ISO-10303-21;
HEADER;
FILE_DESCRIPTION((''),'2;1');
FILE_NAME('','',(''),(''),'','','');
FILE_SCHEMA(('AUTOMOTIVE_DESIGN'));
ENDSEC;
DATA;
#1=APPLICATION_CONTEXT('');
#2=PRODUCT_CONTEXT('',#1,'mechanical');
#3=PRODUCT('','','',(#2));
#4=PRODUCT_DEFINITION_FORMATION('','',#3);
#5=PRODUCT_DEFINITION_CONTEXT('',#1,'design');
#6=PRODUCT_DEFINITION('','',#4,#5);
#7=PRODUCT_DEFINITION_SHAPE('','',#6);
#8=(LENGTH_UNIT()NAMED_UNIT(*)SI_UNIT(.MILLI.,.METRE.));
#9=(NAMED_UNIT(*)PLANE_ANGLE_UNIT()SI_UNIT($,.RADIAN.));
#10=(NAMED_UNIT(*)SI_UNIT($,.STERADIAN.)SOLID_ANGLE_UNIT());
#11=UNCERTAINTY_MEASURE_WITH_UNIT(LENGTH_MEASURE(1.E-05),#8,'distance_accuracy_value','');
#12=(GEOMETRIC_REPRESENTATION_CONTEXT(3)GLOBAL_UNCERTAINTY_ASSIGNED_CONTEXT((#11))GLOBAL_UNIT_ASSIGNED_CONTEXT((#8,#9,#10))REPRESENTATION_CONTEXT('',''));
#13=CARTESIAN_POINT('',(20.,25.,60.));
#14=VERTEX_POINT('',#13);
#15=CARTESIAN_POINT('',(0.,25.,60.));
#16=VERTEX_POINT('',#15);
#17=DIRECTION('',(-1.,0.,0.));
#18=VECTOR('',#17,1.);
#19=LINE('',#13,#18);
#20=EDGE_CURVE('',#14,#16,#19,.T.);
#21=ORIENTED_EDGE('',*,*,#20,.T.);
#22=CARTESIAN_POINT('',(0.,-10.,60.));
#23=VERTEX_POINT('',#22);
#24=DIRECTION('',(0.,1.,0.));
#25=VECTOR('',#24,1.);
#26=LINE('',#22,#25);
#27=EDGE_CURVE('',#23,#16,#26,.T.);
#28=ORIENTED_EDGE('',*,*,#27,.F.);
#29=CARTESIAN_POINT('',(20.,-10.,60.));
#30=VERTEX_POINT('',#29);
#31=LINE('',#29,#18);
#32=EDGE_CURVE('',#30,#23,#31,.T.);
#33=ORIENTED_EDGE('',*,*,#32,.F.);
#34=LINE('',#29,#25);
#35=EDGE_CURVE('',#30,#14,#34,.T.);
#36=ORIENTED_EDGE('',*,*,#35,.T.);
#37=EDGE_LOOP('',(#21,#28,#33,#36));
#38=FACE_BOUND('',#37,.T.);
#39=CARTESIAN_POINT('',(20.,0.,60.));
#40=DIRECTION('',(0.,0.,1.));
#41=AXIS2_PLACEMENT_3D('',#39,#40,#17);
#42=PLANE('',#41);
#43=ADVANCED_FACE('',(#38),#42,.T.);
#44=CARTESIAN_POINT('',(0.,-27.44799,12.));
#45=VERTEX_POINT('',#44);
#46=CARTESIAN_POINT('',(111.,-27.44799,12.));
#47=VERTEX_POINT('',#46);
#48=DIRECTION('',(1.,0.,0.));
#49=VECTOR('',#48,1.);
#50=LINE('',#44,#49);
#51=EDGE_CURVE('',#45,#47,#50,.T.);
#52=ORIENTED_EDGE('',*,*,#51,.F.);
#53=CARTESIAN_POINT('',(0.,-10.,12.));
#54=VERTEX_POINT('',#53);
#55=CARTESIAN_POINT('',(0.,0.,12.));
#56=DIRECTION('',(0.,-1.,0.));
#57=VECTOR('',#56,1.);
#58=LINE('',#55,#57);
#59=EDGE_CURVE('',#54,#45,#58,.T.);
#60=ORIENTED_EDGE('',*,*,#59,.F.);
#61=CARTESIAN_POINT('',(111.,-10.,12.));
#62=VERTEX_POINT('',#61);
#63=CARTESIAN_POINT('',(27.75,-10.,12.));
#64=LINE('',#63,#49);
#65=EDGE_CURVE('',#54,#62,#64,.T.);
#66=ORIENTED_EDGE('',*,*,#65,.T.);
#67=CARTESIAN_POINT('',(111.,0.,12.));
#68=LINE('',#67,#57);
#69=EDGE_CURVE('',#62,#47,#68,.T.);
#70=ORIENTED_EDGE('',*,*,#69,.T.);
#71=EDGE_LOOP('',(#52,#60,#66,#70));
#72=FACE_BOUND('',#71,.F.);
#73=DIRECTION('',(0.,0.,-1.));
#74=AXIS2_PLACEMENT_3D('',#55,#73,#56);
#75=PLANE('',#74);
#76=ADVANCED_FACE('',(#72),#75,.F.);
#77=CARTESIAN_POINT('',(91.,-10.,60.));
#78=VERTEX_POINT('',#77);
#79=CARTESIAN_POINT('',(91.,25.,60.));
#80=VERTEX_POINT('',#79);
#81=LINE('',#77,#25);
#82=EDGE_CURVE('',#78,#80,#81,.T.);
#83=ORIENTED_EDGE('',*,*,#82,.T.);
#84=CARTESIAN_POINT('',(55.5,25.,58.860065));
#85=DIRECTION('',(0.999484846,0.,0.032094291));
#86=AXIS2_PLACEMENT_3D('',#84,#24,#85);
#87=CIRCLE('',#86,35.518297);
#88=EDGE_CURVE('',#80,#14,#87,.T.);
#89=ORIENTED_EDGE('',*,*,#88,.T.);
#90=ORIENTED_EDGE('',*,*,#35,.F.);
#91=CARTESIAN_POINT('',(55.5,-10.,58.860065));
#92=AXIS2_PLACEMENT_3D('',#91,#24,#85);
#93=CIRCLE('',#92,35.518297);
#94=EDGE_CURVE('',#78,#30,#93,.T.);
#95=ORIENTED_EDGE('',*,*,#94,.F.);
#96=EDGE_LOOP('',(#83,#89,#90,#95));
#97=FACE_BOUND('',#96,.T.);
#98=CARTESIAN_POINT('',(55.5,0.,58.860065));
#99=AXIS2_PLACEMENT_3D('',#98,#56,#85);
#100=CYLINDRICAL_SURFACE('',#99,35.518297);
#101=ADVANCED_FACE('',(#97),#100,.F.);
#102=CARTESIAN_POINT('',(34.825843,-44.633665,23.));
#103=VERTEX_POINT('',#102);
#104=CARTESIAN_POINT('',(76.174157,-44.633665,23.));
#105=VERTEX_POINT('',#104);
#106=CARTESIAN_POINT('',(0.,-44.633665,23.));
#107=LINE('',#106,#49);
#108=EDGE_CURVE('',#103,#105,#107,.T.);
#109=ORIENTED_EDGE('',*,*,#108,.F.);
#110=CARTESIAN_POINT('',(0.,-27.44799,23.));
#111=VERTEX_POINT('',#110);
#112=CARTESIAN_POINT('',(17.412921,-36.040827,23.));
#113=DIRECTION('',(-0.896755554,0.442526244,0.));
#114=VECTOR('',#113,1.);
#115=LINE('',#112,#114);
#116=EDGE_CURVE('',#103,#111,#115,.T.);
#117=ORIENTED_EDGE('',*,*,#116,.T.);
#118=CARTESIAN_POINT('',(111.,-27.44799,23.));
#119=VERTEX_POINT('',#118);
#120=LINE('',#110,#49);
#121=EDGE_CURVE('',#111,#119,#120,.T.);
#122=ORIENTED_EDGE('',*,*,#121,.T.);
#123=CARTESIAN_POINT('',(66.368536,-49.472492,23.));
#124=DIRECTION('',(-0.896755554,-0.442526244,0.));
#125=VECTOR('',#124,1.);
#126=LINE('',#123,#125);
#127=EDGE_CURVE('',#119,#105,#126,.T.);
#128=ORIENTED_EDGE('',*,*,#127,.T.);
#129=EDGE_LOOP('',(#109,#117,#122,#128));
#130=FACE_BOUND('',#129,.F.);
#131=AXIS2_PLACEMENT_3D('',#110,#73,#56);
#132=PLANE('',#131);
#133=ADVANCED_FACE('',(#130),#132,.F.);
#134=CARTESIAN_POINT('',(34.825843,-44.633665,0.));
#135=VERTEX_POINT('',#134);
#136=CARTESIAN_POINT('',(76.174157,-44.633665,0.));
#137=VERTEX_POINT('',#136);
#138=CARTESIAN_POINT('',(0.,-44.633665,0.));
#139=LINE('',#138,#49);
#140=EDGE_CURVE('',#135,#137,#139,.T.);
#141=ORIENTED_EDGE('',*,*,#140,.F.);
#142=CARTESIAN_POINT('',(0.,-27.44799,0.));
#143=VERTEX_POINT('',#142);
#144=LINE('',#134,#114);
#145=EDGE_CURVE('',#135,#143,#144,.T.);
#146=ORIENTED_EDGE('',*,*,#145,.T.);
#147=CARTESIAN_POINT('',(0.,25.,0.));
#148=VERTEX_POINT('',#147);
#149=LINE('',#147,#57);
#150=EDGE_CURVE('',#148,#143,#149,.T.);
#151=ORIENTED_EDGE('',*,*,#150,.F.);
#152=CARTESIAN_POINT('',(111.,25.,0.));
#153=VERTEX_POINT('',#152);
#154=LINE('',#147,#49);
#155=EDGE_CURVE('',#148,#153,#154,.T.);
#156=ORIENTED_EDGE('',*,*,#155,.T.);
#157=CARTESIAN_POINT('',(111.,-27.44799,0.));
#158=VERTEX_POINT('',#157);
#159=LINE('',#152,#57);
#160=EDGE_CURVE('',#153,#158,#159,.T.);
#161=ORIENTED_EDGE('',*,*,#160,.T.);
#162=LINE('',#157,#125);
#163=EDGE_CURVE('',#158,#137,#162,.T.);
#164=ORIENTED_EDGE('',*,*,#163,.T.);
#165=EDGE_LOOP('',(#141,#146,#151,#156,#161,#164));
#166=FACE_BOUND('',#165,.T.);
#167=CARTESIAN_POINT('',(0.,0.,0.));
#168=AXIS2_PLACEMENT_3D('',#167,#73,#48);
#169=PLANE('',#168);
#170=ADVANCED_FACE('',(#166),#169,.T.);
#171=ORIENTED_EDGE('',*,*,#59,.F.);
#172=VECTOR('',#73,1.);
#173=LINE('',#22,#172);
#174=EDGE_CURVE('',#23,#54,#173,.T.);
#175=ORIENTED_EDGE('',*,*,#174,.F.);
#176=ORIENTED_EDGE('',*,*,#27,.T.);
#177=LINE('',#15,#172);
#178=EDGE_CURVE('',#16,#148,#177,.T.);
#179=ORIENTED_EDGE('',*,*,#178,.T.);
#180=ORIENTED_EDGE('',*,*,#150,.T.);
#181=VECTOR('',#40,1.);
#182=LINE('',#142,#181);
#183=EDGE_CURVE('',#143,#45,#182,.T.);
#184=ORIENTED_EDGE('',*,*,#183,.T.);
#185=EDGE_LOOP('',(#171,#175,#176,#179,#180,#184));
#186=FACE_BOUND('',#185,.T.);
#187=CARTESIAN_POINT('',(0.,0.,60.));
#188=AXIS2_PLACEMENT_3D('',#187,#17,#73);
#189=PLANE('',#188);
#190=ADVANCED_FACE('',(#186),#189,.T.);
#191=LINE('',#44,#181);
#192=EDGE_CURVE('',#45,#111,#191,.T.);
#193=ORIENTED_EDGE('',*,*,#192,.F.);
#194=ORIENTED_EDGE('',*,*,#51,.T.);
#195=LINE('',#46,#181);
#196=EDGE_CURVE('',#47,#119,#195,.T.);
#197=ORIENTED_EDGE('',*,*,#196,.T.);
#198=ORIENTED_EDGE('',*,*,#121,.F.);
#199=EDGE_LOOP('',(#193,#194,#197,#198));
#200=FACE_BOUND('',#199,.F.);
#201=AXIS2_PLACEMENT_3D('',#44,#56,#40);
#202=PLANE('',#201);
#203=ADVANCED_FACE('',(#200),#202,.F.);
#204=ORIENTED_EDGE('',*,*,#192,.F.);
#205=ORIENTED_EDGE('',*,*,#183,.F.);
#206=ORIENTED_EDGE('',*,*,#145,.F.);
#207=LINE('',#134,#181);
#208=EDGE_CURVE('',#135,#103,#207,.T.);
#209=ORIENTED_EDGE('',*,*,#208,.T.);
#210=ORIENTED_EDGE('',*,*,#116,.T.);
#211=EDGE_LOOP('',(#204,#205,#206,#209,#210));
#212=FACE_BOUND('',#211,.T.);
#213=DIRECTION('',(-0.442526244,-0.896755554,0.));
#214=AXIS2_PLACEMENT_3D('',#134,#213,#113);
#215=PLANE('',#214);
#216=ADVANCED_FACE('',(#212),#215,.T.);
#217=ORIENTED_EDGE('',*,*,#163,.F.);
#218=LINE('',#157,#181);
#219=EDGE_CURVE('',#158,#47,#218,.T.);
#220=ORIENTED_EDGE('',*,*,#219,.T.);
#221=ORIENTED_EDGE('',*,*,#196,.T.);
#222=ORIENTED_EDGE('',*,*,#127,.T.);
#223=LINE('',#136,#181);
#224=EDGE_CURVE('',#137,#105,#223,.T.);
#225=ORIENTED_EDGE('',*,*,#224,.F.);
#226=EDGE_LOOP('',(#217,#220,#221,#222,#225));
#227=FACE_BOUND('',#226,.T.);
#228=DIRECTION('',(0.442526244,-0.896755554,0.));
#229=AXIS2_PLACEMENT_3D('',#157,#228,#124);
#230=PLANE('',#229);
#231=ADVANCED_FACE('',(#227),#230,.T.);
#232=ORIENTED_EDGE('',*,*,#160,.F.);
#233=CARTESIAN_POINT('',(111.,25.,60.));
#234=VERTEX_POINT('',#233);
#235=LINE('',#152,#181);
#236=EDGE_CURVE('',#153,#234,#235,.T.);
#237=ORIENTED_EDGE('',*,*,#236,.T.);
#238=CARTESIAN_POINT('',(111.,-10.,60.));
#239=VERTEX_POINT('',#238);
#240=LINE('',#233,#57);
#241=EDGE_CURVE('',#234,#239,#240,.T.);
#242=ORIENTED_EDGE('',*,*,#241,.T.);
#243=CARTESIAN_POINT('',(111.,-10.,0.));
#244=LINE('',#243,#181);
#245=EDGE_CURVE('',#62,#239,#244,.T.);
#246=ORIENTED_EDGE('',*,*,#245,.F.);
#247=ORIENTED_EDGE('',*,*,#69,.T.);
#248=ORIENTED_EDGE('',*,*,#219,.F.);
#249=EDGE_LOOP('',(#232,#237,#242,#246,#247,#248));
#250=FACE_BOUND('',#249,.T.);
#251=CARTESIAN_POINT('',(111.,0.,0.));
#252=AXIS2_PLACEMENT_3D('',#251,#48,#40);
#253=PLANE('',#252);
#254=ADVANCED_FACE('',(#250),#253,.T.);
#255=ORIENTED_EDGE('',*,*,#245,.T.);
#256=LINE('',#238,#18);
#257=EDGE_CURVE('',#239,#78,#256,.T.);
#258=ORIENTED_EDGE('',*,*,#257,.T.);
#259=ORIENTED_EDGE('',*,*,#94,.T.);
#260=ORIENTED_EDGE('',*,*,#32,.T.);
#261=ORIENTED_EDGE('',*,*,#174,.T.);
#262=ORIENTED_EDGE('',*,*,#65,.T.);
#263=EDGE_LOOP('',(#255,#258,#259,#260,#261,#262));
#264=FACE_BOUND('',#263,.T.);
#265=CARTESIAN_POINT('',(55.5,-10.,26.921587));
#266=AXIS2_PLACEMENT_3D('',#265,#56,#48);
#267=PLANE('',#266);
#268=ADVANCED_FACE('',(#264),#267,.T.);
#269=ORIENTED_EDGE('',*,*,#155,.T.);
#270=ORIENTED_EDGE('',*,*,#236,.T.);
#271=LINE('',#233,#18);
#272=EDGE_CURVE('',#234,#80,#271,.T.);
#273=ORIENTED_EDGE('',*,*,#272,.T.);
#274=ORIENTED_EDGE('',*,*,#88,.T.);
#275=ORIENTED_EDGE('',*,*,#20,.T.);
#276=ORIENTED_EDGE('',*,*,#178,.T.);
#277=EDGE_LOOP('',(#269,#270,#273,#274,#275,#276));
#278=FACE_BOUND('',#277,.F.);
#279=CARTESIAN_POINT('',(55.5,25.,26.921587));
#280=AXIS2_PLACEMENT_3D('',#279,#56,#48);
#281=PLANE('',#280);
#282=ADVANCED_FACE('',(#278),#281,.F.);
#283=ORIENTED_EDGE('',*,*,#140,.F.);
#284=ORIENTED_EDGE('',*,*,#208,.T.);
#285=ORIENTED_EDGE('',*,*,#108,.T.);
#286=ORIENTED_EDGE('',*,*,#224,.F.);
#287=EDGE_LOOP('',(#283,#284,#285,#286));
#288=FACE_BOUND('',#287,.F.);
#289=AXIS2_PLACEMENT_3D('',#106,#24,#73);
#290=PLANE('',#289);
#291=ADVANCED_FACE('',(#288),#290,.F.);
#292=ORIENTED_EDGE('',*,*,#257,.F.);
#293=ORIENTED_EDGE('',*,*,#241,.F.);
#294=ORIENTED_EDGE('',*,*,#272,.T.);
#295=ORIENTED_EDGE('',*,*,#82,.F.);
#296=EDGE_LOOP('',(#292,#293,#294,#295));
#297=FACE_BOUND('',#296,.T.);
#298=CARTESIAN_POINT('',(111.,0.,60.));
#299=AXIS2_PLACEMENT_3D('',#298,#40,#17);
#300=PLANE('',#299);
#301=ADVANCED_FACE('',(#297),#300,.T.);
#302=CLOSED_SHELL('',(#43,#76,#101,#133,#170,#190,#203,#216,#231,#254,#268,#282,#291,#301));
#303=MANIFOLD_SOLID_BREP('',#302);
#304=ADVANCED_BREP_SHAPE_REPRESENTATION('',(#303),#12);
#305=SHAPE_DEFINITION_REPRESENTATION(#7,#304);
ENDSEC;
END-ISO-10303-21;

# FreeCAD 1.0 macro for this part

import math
import FreeCAD as App
import Part
import Sketcher
from FreeCAD import Vector

doc = App.newDocument("Part")
body = doc.addObject("PartDesign::Body", "Body")

# Sketch on XZ plane
sketch1 = body.newObject("Sketcher::SketchObject", "Sketch")
sketch1.AttachmentSupport = (doc.getObject("XZ_Plane"), [""])
sketch1.MapMode = "FlatFace"
sketch1.addGeometry([
    Part.LineSegment(Vector(0, 60, 0), Vector(0, 0, 0)),  # 0
    Part.LineSegment(Vector(0, 0, 0), Vector(111, 0, 0)),  # 1
    Part.LineSegment(Vector(111, 0, 0), Vector(111, 60, 0)),  # 2
    Part.LineSegment(Vector(111, 60, 0), Vector(91, 60, 0)),  # 3
    Part.ArcOfCircle(Part.Circle(Vector(56, 59, 0), Vector(0, 0, 1), 36), math.radians(178), math.radians(362)),  # 4
    Part.LineSegment(Vector(20, 60, 0), Vector(0, 60, 0)),  # 5
], False)
sketch1.addConstraint([
    Sketcher.Constraint("Coincident", 0, 2, 1, 1),
    Sketcher.Constraint("Coincident", 1, 2, 2, 1),
    Sketcher.Constraint("Coincident", 2, 2, 3, 1),
    Sketcher.Constraint("Coincident", 3, 2, 4, 2),
    Sketcher.Constraint("Coincident", 4, 1, 5, 1),
    Sketcher.Constraint("Coincident", 5, 2, 0, 1),
    Sketcher.Constraint("Vertical", 0),
    Sketcher.Constraint("Horizontal", 1),
    Sketcher.Constraint("Vertical", 2),
    Sketcher.Constraint("Horizontal", 3),
    Sketcher.Constraint("Horizontal", 5),
    Sketcher.Constraint("Coincident", 0, 2, -1, 1),
    Sketcher.Constraint("Horizontal", 3, 2, 4, 1),
    Sketcher.Constraint("Equal", 3, 5),
    Sketcher.Constraint("DistanceX", 1, 1, 1, 2, 111.0),
    Sketcher.Constraint("DistanceX", 3, 2, 3, 1, 20.0),
    Sketcher.Constraint("DistanceY", 0, 2, 0, 1, 60.0),
    Sketcher.Constraint("Radius", 4, 35.518297),
])
pad1 = body.newObject("PartDesign::Pad", "Pad")
pad1.Profile = sketch1
pad1.Type = "TwoLengths"
pad1.Length = 10
pad1.Length2 = 25

# Sketch on YZ plane
sketch2 = body.newObject("Sketcher::SketchObject", "Sketch001")
sketch2.AttachmentSupport = (doc.getObject("YZ_Plane"), [""])
sketch2.MapMode = "FlatFace"
sketch2.addGeometry([
    Part.LineSegment(Vector(0, 12, 0), Vector(-27, 12, 0)),  # 0
    Part.LineSegment(Vector(-27, 12, 0), Vector(-27, 23, 0)),  # 1
    Part.LineSegment(Vector(-27, 23, 0), Vector(-45, 23, 0)),  # 2
    Part.LineSegment(Vector(-45, 23, 0), Vector(-45, 0, 0)),  # 3
    Part.LineSegment(Vector(-45, 0, 0), Vector(0, 0, 0)),  # 4
    Part.LineSegment(Vector(0, 0, 0), Vector(0, 12, 0)),  # 5
], False)
sketch2.addConstraint([
    Sketcher.Constraint("Coincident", 0, 2, 1, 1),
    Sketcher.Constraint("Coincident", 1, 2, 2, 1),
    Sketcher.Constraint("Coincident", 2, 2, 3, 1),
    Sketcher.Constraint("Coincident", 3, 2, 4, 1),
    Sketcher.Constraint("Coincident", 4, 2, 5, 1),
    Sketcher.Constraint("Coincident", 5, 2, 0, 1),
    Sketcher.Constraint("Horizontal", 0),
    Sketcher.Constraint("Vertical", 1),
    Sketcher.Constraint("Horizontal", 2),
    Sketcher.Constraint("Vertical", 3),
    Sketcher.Constraint("Horizontal", 4),
    Sketcher.Constraint("Vertical", 5),
    Sketcher.Constraint("Coincident", 4, 2, -1, 1),
    Sketcher.Constraint("DistanceY", 1, 1, 1, 2, 11.0),
    Sketcher.Constraint("DistanceY", 3, 2, 3, 1, 23.0),
    Sketcher.Constraint("DistanceX", 0, 2, 0, 1, 27.44799),
    Sketcher.Constraint("DistanceX", 2, 2, 2, 1, 17.185675),
])
pad2 = body.newObject("PartDesign::Pad", "Pad001")
pad2.Profile = sketch2
pad2.Length = 111

# Sketch on XY plane
sketch3 = body.newObject("Sketcher::SketchObject", "Sketch002")
sketch3.AttachmentSupport = (doc.getObject("XY_Plane"), [""])
sketch3.MapMode = "FlatFace"
sketch3.addGeometry([
    Part.LineSegment(Vector(111, -27, 0), Vector(76, -45, 0)),  # 0
    Part.LineSegment(Vector(76, -45, 0), Vector(111, -45, 0)),  # 1
    Part.LineSegment(Vector(111, -45, 0), Vector(111, -27, 0)),  # 2
    Part.LineSegment(Vector(35, -45, 0), Vector(0, -27, 0)),  # 3
    Part.LineSegment(Vector(0, -27, 0), Vector(0, -45, 0)),  # 4
    Part.LineSegment(Vector(0, -45, 0), Vector(35, -45, 0)),  # 5
], False)
sketch3.addConstraint([
    Sketcher.Constraint("Coincident", 0, 2, 1, 1),
    Sketcher.Constraint("Coincident", 1, 2, 2, 1),
    Sketcher.Constraint("Coincident", 2, 2, 0, 1),
    Sketcher.Constraint("Coincident", 3, 2, 4, 1),
    Sketcher.Constraint("Coincident", 4, 2, 5, 1),
    Sketcher.Constraint("Coincident", 5, 2, 3, 1),
    Sketcher.Constraint("Horizontal", 1),
    Sketcher.Constraint("Vertical", 2),
    Sketcher.Constraint("Vertical", 4),
    Sketcher.Constraint("Horizontal", 5),
    Sketcher.Constraint("PointOnObject", 3, 2, -2),
    Sketcher.Constraint("Horizontal", 2, 2, 3, 2),
    Sketcher.Constraint("Horizontal", 1, 2, 4, 2),
    Sketcher.Constraint("Equal", 1, 5),
    Sketcher.Constraint("DistanceX", -1, 1, 1, 2, 111.0),
    Sketcher.Constraint("Distance", 0, 38.83538),
    Sketcher.Constraint("DistanceX", 1, 1, 1, 2, 34.825843),
    Sketcher.Constraint("DistanceY", 2, 2, -1, 1, 27.44799),
])
pocket1 = body.newObject("PartDesign::Pocket", "Pocket")
pocket1.Profile = sketch3
pocket1.Type = "ThroughAll"
pocket1.Reversed = True

doc.recompute()
